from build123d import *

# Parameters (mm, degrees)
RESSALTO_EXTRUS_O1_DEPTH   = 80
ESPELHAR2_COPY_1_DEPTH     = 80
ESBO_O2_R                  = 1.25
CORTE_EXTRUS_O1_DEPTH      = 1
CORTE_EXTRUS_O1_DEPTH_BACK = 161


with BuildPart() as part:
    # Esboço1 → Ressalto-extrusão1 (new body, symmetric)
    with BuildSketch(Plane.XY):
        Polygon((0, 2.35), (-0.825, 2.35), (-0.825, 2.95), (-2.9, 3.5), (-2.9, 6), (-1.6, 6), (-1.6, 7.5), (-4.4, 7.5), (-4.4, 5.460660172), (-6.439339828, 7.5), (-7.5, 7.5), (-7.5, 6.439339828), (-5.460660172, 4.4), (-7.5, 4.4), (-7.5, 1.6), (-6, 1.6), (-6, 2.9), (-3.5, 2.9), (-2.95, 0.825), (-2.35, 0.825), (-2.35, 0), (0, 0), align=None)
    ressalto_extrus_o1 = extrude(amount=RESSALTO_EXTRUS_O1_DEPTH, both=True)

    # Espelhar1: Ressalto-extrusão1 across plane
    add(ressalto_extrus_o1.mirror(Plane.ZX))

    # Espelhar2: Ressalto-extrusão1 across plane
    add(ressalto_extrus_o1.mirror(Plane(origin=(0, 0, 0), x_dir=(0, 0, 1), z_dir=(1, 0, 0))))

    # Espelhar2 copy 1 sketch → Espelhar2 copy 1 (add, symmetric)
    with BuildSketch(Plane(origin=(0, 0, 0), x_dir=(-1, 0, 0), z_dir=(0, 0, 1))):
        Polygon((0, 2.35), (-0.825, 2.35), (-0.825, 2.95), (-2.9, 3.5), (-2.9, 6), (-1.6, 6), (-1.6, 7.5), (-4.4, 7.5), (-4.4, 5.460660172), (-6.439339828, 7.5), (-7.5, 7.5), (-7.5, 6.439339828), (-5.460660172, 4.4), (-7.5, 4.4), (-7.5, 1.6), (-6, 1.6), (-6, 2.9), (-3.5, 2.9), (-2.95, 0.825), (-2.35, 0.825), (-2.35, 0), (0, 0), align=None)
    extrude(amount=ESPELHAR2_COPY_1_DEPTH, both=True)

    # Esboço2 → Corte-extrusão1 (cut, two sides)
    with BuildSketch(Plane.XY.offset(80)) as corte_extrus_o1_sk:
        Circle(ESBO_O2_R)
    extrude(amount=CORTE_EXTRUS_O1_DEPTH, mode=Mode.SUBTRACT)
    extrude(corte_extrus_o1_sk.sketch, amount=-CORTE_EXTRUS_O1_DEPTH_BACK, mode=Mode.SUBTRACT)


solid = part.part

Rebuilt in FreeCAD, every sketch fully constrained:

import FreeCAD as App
import Part
import Sketcher
Q = App.Units.Quantity

doc = App.newDocument("Part")
params = doc.addObject("Spreadsheet::Sheet", "Params")
for row, (alias, value) in enumerate([
    ("sketch1_width", "1.3 mm"),
    ("sketch1_width2", "2.8 mm"),
    ("sketch1_width3", "1.5 mm"),
    ("sketch1_width4", "2.5 mm"),
    ("sketch1_width5", "0.6 mm"),
    ("pad1_length", "160 mm"),
    ("sketch2_width", "1.3 mm"),
    ("sketch2_width2", "2.8 mm"),
    ("sketch2_width3", "1.5 mm"),
    ("sketch2_width4", "2.5 mm"),
    ("sketch2_width5", "0.6 mm"),
    ("pad2_length", "160 mm"),
    ("sketch3_diameter", "2.5 mm"),
], start=1):
    params.set(f"A{row}", alias)
    params.set(f"B{row}", "=" + value)
    params.setAlias(f"B{row}", alias)

body = doc.addObject("PartDesign::Body", "Body")

sketch1 = body.newObject("Sketcher::SketchObject", "Sketch")
sketch1.AttachmentSupport = (doc.getObject("XY_Plane"), [""])
sketch1.MapMode = "FlatFace"
sketch1.addGeometry([
    Part.LineSegment(App.Vector(0, 2.4, 0), App.Vector(-0.8, 2.4, 0)),
    Part.LineSegment(App.Vector(-0.8, 2.4, 0), App.Vector(-0.8, 3, 0)),
    Part.LineSegment(App.Vector(-0.8, 3, 0), App.Vector(-2.9, 3.5, 0)),
    Part.LineSegment(App.Vector(-2.9, 3.5, 0), App.Vector(-2.9, 6, 0)),
    Part.LineSegment(App.Vector(-2.9, 6, 0), App.Vector(-1.6, 6, 0)),
    Part.LineSegment(App.Vector(-1.6, 6, 0), App.Vector(-1.6, 7.5, 0)),
    Part.LineSegment(App.Vector(-1.6, 7.5, 0), App.Vector(-4.4, 7.5, 0)),
    Part.LineSegment(App.Vector(-4.4, 7.5, 0), App.Vector(-4.4, 5.5, 0)),
    Part.LineSegment(App.Vector(-4.4, 5.5, 0), App.Vector(-6.4, 7.5, 0)),
    Part.LineSegment(App.Vector(-6.4, 7.5, 0), App.Vector(-7.5, 7.5, 0)),
    Part.LineSegment(App.Vector(-7.5, 7.5, 0), App.Vector(-7.5, 6.4, 0)),
    Part.LineSegment(App.Vector(-7.5, 6.4, 0), App.Vector(-5.5, 4.4, 0)),
    Part.LineSegment(App.Vector(-5.5, 4.4, 0), App.Vector(-7.5, 4.4, 0)),
    Part.LineSegment(App.Vector(-7.5, 4.4, 0), App.Vector(-7.5, 1.6, 0)),
    Part.LineSegment(App.Vector(-7.5, 1.6, 0), App.Vector(-6, 1.6, 0)),
    Part.LineSegment(App.Vector(-6, 1.6, 0), App.Vector(-6, 2.9, 0)),
    Part.LineSegment(App.Vector(-6, 2.9, 0), App.Vector(-3.5, 2.9, 0)),
    Part.LineSegment(App.Vector(-3.5, 2.9, 0), App.Vector(-3, 0.8, 0)),
    Part.LineSegment(App.Vector(-3, 0.8, 0), App.Vector(-2.4, 0.8, 0)),
    Part.LineSegment(App.Vector(-2.4, 0.8, 0), App.Vector(-2.4, 0, 0)),
    Part.LineSegment(App.Vector(-2.4, 0, 0), App.Vector(0, 0, 0)),
    Part.LineSegment(App.Vector(0, 0, 0), App.Vector(0, 2.4, 0)),
], False)
sketch1.addConstraint([
    Sketcher.Constraint("Coincident", 0, 2, 1, 1),
    Sketcher.Constraint("Coincident", 1, 2, 2, 1),
    Sketcher.Constraint("Coincident", 2, 2, 3, 1),
    Sketcher.Constraint("Coincident", 3, 2, 4, 1),
    Sketcher.Constraint("Coincident", 4, 2, 5, 1),
    Sketcher.Constraint("Coincident", 5, 2, 6, 1),
    Sketcher.Constraint("Coincident", 6, 2, 7, 1),
    Sketcher.Constraint("Coincident", 7, 2, 8, 1),
    Sketcher.Constraint("Coincident", 8, 2, 9, 1),
    Sketcher.Constraint("Coincident", 9, 2, 10, 1),
    Sketcher.Constraint("Coincident", 10, 2, 11, 1),
    Sketcher.Constraint("Coincident", 11, 2, 12, 1),
    Sketcher.Constraint("Coincident", 12, 2, 13, 1),
    Sketcher.Constraint("Coincident", 13, 2, 14, 1),
    Sketcher.Constraint("Coincident", 14, 2, 15, 1),
    Sketcher.Constraint("Coincident", 15, 2, 16, 1),
    Sketcher.Constraint("Coincident", 16, 2, 17, 1),
    Sketcher.Constraint("Coincident", 17, 2, 18, 1),
    Sketcher.Constraint("Coincident", 18, 2, 19, 1),
    Sketcher.Constraint("Coincident", 19, 2, 20, 1),
    Sketcher.Constraint("Coincident", 20, 2, 21, 1),
    Sketcher.Constraint("Coincident", 21, 2, 0, 1),
    Sketcher.Constraint("Horizontal", 0),
    Sketcher.Constraint("Vertical", 1),
    Sketcher.Constraint("Vertical", 3),
    Sketcher.Constraint("Horizontal", 4),
    Sketcher.Constraint("Vertical", 5),
    Sketcher.Constraint("Horizontal", 6),
    Sketcher.Constraint("Vertical", 7),
    Sketcher.Constraint("Horizontal", 9),
    Sketcher.Constraint("Vertical", 10),
    Sketcher.Constraint("Horizontal", 12),
    Sketcher.Constraint("Vertical", 13),
    Sketcher.Constraint("Horizontal", 14),
    Sketcher.Constraint("Vertical", 15),
    Sketcher.Constraint("Horizontal", 16),
    Sketcher.Constraint("Horizontal", 18),
    Sketcher.Constraint("Vertical", 19),
    Sketcher.Constraint("Horizontal", 20),
    Sketcher.Constraint("Vertical", 21),
    Sketcher.Constraint("Coincident", 20, 2, -1, 1),
    Sketcher.Constraint("Parallel", 8, 11),
    Sketcher.Constraint("Horizontal", 6, 2, 8, 2),
    Sketcher.Constraint("Vertical", 10, 2, 12, 2),
    Sketcher.Constraint("Equal", 18, 1),
    Sketcher.Constraint("Equal", 16, 3),
    Sketcher.Constraint("Equal", 14, 5),
    Sketcher.Constraint("Equal", 12, 7),
    Sketcher.Constraint("Equal", 9, 10),
    Sketcher.Constraint("Equal", 6, 13),
    Sketcher.Constraint("Equal", 4, 15),
    Sketcher.Constraint("Equal", 0, 19),
    Sketcher.Constraint("Equal", 20, 21),
    Sketcher.Constraint("Equal", 8, 11),
    Sketcher.Constraint("Equal", 2, 17),
    Sketcher.Constraint("DistanceX", 4, 1, 4, 2, Q("1.3 mm")),
    Sketcher.Constraint("DistanceX", 6, 2, 6, 1, Q("2.8 mm")),
    Sketcher.Constraint("DistanceX", 14, 1, 14, 2, Q("1.5 mm")),
    Sketcher.Constraint("DistanceX", 16, 1, 16, 2, Q("2.5 mm")),
    Sketcher.Constraint("DistanceX", 18, 1, 18, 2, Q("0.6 mm")),
    Sketcher.Constraint("DistanceY", -1, 1, 3, 2, Q("6 mm")),
    Sketcher.Constraint("DistanceX", 20, 1, 20, 2, Q("2.35 mm")),
    Sketcher.Constraint("DistanceX", 2, 2, -1, 1, Q("2.9 mm")),
    Sketcher.Constraint("DistanceX", 0, 2, 0, 1, Q("0.825 mm")),
    Sketcher.Constraint("DistanceX", 9, 2, 9, 1, Q("1.06066 mm")),
])
sketch1.setExpression("Constraints[55]", "Params.sketch1_width")
sketch1.setExpression("Constraints[56]", "Params.sketch1_width2")
sketch1.setExpression("Constraints[57]", "Params.sketch1_width3")
sketch1.setExpression("Constraints[58]", "Params.sketch1_width4")
sketch1.setExpression("Constraints[59]", "Params.sketch1_width5")
pad1 = body.newObject("PartDesign::Pad", "Pad")
pad1.Profile = sketch1
pad1.setExpression("Length", "Params.pad1_length")
pad1.Midplane = True
doc.recompute()

mirrored = body.newObject("PartDesign::Mirrored", "Mirrored")
mirrored.Originals = [pad1]
mirrored.MirrorPlane = (doc.getObject("XZ_Plane"), [""])
body.Tip = mirrored
doc.recompute()

mirrored2 = body.newObject("PartDesign::Mirrored", "Mirrored001")
mirrored2.Originals = [pad1]
mirrored2.MirrorPlane = (doc.getObject("YZ_Plane"), [""])
body.Tip = mirrored2

sketch2 = body.newObject("Sketcher::SketchObject", "Sketch001")
sketch2.AttachmentSupport = (doc.getObject("XY_Plane"), [""])
sketch2.MapMode = "FlatFace"
sketch2.addGeometry([
    Part.LineSegment(App.Vector(0, -2.4, 0), App.Vector(0.8, -2.4, 0)),
    Part.LineSegment(App.Vector(0.8, -2.4, 0), App.Vector(0.8, -3, 0)),
    Part.LineSegment(App.Vector(0.8, -3, 0), App.Vector(2.9, -3.5, 0)),
    Part.LineSegment(App.Vector(2.9, -3.5, 0), App.Vector(2.9, -6, 0)),
    Part.LineSegment(App.Vector(2.9, -6, 0), App.Vector(1.6, -6, 0)),
    Part.LineSegment(App.Vector(1.6, -6, 0), App.Vector(1.6, -7.5, 0)),
    Part.LineSegment(App.Vector(1.6, -7.5, 0), App.Vector(4.4, -7.5, 0)),
    Part.LineSegment(App.Vector(4.4, -7.5, 0), App.Vector(4.4, -5.5, 0)),
    Part.LineSegment(App.Vector(4.4, -5.5, 0), App.Vector(6.4, -7.5, 0)),
    Part.LineSegment(App.Vector(6.4, -7.5, 0), App.Vector(7.5, -7.5, 0)),
    Part.LineSegment(App.Vector(7.5, -7.5, 0), App.Vector(7.5, -6.4, 0)),
    Part.LineSegment(App.Vector(7.5, -6.4, 0), App.Vector(5.5, -4.4, 0)),
    Part.LineSegment(App.Vector(5.5, -4.4, 0), App.Vector(7.5, -4.4, 0)),
    Part.LineSegment(App.Vector(7.5, -4.4, 0), App.Vector(7.5, -1.6, 0)),
    Part.LineSegment(App.Vector(7.5, -1.6, 0), App.Vector(6, -1.6, 0)),
    Part.LineSegment(App.Vector(6, -1.6, 0), App.Vector(6, -2.9, 0)),
    Part.LineSegment(App.Vector(6, -2.9, 0), App.Vector(3.5, -2.9, 0)),
    Part.LineSegment(App.Vector(3.5, -2.9, 0), App.Vector(3, -0.8, 0)),
    Part.LineSegment(App.Vector(3, -0.8, 0), App.Vector(2.4, -0.8, 0)),
    Part.LineSegment(App.Vector(2.4, -0.8, 0), App.Vector(2.4, 0, 0)),
    Part.LineSegment(App.Vector(2.4, 0, 0), App.Vector(0, 0, 0)),
    Part.LineSegment(App.Vector(0, 0, 0), App.Vector(0, -2.4, 0)),
], False)
sketch2.addConstraint([
    Sketcher.Constraint("Coincident", 0, 2, 1, 1),
    Sketcher.Constraint("Coincident", 1, 2, 2, 1),
    Sketcher.Constraint("Coincident", 2, 2, 3, 1),
    Sketcher.Constraint("Coincident", 3, 2, 4, 1),
    Sketcher.Constraint("Coincident", 4, 2, 5, 1),
    Sketcher.Constraint("Coincident", 5, 2, 6, 1),
    Sketcher.Constraint("Coincident", 6, 2, 7, 1),
    Sketcher.Constraint("Coincident", 7, 2, 8, 1),
    Sketcher.Constraint("Coincident", 8, 2, 9, 1),
    Sketcher.Constraint("Coincident", 9, 2, 10, 1),
    Sketcher.Constraint("Coincident", 10, 2, 11, 1),
    Sketcher.Constraint("Coincident", 11, 2, 12, 1),
    Sketcher.Constraint("Coincident", 12, 2, 13, 1),
    Sketcher.Constraint("Coincident", 13, 2, 14, 1),
    Sketcher.Constraint("Coincident", 14, 2, 15, 1),
    Sketcher.Constraint("Coincident", 15, 2, 16, 1),
    Sketcher.Constraint("Coincident", 16, 2, 17, 1),
    Sketcher.Constraint("Coincident", 17, 2, 18, 1),
    Sketcher.Constraint("Coincident", 18, 2, 19, 1),
    Sketcher.Constraint("Coincident", 19, 2, 20, 1),
    Sketcher.Constraint("Coincident", 20, 2, 21, 1),
    Sketcher.Constraint("Coincident", 21, 2, 0, 1),
    Sketcher.Constraint("Horizontal", 0),
    Sketcher.Constraint("Vertical", 1),
    Sketcher.Constraint("Vertical", 3),
    Sketcher.Constraint("Horizontal", 4),
    Sketcher.Constraint("Vertical", 5),
    Sketcher.Constraint("Horizontal", 6),
    Sketcher.Constraint("Vertical", 7),
    Sketcher.Constraint("Horizontal", 9),
    Sketcher.Constraint("Vertical", 10),
    Sketcher.Constraint("Horizontal", 12),
    Sketcher.Constraint("Vertical", 13),
    Sketcher.Constraint("Horizontal", 14),
    Sketcher.Constraint("Vertical", 15),
    Sketcher.Constraint("Horizontal", 16),
    Sketcher.Constraint("Horizontal", 18),
    Sketcher.Constraint("Vertical", 19),
    Sketcher.Constraint("Horizontal", 20),
    Sketcher.Constraint("Vertical", 21),
    Sketcher.Constraint("Coincident", 20, 2, -1, 1),
    Sketcher.Constraint("Parallel", 8, 11),
    Sketcher.Constraint("Horizontal", 6, 2, 8, 2),
    Sketcher.Constraint("Vertical", 10, 2, 12, 2),
    Sketcher.Constraint("Equal", 18, 1),
    Sketcher.Constraint("Equal", 16, 3),
    Sketcher.Constraint("Equal", 14, 5),
    Sketcher.Constraint("Equal", 12, 7),
    Sketcher.Constraint("Equal", 9, 10),
    Sketcher.Constraint("Equal", 6, 13),
    Sketcher.Constraint("Equal", 4, 15),
    Sketcher.Constraint("Equal", 0, 19),
    Sketcher.Constraint("Equal", 20, 21),
    Sketcher.Constraint("Equal", 8, 11),
    Sketcher.Constraint("Equal", 2, 17),
    Sketcher.Constraint("DistanceX", 4, 2, 4, 1, Q("1.3 mm")),
    Sketcher.Constraint("DistanceX", 6, 1, 6, 2, Q("2.8 mm")),
    Sketcher.Constraint("DistanceX", 14, 2, 14, 1, Q("1.5 mm")),
    Sketcher.Constraint("DistanceX", 16, 2, 16, 1, Q("2.5 mm")),
    Sketcher.Constraint("DistanceX", 18, 2, 18, 1, Q("0.6 mm")),
    Sketcher.Constraint("DistanceY", 3, 2, -1, 1, Q("6 mm")),
    Sketcher.Constraint("DistanceX", 20, 2, 20, 1, Q("2.35 mm")),
    Sketcher.Constraint("DistanceX", -1, 1, 2, 2, Q("2.9 mm")),
    Sketcher.Constraint("DistanceX", 0, 1, 0, 2, Q("0.825 mm")),
    Sketcher.Constraint("DistanceX", 9, 1, 9, 2, Q("1.06066 mm")),
])
sketch2.setExpression("Constraints[55]", "Params.sketch2_width")
sketch2.setExpression("Constraints[56]", "Params.sketch2_width2")
sketch2.setExpression("Constraints[57]", "Params.sketch2_width3")
sketch2.setExpression("Constraints[58]", "Params.sketch2_width4")
sketch2.setExpression("Constraints[59]", "Params.sketch2_width5")
pad2 = body.newObject("PartDesign::Pad", "Pad001")
pad2.Profile = sketch2
pad2.setExpression("Length", "Params.pad2_length")
pad2.Midplane = True

sketch3 = body.newObject("Sketcher::SketchObject", "Sketch002")
sketch3.AttachmentSupport = (doc.getObject("XY_Plane"), [""])
sketch3.MapMode = "FlatFace"
sketch3.AttachmentOffset = App.Placement(App.Vector(0, 0, 80), App.Rotation())
sketch3.addGeometry(Part.Circle(App.Vector(0, 0, 0), App.Vector(0, 0, 1), 1.2), False)
sketch3.addConstraint([
    Sketcher.Constraint("Coincident", 0, 3, -1, 1),
    Sketcher.Constraint("Diameter", 0, Q("2.5 mm")),
])
sketch3.setExpression("Constraints[1]", "Params.sketch3_diameter")
pocket1 = body.newObject("PartDesign::Pocket", "Pocket")
pocket1.Profile = sketch3
pocket1.Type = "ThroughAll"
pocket1.Midplane = True

doc.recompute()
